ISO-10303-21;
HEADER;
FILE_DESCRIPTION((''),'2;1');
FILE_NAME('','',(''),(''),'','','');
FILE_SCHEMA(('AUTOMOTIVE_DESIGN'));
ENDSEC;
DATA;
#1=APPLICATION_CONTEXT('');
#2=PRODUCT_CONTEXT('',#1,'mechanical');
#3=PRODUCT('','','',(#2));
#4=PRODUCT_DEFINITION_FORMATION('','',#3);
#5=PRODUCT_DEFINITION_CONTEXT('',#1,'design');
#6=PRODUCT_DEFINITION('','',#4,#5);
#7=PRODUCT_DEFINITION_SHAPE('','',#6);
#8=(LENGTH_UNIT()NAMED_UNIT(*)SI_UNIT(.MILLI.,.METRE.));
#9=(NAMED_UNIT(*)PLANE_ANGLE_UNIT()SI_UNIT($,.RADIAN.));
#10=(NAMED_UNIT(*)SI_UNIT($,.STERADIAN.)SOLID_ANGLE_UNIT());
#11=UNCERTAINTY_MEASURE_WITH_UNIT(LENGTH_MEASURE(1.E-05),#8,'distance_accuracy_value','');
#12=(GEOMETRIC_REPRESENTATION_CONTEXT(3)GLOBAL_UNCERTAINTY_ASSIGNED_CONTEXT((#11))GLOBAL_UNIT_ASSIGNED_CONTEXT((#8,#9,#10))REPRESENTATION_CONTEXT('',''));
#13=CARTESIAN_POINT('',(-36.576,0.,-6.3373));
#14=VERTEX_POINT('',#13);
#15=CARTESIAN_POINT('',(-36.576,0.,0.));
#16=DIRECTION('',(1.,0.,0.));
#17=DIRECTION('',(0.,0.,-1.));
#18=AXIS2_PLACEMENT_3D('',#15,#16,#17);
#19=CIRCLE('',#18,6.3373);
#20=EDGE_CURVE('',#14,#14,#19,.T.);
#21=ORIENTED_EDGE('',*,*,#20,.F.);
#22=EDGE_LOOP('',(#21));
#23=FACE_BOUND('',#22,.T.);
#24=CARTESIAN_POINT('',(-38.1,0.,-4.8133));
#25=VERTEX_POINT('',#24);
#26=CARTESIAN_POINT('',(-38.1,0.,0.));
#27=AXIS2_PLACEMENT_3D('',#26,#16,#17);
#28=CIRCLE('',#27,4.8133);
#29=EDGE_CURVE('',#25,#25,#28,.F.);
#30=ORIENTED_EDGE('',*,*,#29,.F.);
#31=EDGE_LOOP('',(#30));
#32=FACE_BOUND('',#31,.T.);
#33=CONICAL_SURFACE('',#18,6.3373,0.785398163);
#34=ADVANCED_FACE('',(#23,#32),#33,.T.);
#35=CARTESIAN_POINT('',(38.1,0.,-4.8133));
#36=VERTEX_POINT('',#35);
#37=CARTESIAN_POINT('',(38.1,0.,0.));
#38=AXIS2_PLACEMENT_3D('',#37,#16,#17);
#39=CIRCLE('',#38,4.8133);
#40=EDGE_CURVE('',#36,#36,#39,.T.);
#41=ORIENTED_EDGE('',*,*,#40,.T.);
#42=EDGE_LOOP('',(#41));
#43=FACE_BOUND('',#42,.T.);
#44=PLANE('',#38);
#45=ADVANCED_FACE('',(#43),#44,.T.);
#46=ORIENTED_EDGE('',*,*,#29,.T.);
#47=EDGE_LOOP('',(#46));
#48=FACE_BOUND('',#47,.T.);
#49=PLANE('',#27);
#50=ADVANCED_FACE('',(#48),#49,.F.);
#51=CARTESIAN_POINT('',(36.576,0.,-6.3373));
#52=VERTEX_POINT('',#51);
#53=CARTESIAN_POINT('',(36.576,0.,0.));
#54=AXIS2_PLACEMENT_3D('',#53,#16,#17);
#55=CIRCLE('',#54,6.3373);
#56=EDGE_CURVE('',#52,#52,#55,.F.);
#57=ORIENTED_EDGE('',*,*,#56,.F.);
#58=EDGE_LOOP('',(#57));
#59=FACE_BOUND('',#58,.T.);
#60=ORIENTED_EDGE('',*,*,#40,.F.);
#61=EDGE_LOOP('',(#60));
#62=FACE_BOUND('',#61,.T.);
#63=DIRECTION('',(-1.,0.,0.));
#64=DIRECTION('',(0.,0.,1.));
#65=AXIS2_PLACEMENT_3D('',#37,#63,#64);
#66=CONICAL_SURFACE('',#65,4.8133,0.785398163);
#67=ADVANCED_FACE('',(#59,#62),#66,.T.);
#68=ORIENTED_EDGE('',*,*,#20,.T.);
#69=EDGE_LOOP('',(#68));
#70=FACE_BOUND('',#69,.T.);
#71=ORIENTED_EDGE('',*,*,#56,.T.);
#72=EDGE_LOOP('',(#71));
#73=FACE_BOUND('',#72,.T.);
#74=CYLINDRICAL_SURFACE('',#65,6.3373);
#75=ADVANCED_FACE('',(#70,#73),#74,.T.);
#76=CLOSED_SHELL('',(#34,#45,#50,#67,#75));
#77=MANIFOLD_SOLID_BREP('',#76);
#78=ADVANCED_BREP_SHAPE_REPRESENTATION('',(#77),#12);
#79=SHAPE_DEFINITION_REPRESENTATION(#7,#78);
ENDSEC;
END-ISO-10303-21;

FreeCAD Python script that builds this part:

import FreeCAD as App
import Part
import Sketcher
from FreeCAD import Vector
Q = App.Units.Quantity


def edges_at(feature, points):
    """Names of the edges that pass closest to the given points."""
    edges = feature.Shape.Edges
    near = lambda p: min(range(len(edges)), key=lambda i: edges[i].distToShape(Part.Vertex(*p))[0])
    return sorted({f"Edge{near(p) + 1}" for p in points})

doc = App.newDocument("Part")
body = doc.addObject("PartDesign::Body", "Body")

sketch1 = doc.addObject("Sketcher::SketchObject", "Sketch")
body.addObject(sketch1)
sketch1.AttachmentSupport = (doc.YZ_Plane, [""])
sketch1.MapMode = "FlatFace"
sketch1.addGeometry(Part.Circle(Vector(0, 0, 0), Vector(0, 0, 1), 6), False)
sketch1.addConstraint([
    Sketcher.Constraint("Coincident", 0, 3, -1, 1),
    Sketcher.Constraint("Diameter", 0, Q("0.499 in")),
])
pad1 = doc.addObject("PartDesign::Pad", "Pad")
body.addObject(pad1)
pad1.Profile = sketch1
pad1.Length = Q("3 in")
pad1.Midplane = True
doc.recompute()

chamfer = doc.addObject("PartDesign::Chamfer", "Chamfer")
body.addObject(chamfer)
chamfer.Base = (pad1, edges_at(pad1, [(38.1, 0, 6.337)]))
chamfer.Size = Q("0.06 in")
doc.recompute()

chamfer2 = doc.addObject("PartDesign::Chamfer", "Chamfer001")
body.addObject(chamfer2)
chamfer2.Base = (chamfer, edges_at(chamfer, [(-38.1, 0, 6.337)]))
chamfer2.Size = Q("0.06 in")

doc.recompute()
